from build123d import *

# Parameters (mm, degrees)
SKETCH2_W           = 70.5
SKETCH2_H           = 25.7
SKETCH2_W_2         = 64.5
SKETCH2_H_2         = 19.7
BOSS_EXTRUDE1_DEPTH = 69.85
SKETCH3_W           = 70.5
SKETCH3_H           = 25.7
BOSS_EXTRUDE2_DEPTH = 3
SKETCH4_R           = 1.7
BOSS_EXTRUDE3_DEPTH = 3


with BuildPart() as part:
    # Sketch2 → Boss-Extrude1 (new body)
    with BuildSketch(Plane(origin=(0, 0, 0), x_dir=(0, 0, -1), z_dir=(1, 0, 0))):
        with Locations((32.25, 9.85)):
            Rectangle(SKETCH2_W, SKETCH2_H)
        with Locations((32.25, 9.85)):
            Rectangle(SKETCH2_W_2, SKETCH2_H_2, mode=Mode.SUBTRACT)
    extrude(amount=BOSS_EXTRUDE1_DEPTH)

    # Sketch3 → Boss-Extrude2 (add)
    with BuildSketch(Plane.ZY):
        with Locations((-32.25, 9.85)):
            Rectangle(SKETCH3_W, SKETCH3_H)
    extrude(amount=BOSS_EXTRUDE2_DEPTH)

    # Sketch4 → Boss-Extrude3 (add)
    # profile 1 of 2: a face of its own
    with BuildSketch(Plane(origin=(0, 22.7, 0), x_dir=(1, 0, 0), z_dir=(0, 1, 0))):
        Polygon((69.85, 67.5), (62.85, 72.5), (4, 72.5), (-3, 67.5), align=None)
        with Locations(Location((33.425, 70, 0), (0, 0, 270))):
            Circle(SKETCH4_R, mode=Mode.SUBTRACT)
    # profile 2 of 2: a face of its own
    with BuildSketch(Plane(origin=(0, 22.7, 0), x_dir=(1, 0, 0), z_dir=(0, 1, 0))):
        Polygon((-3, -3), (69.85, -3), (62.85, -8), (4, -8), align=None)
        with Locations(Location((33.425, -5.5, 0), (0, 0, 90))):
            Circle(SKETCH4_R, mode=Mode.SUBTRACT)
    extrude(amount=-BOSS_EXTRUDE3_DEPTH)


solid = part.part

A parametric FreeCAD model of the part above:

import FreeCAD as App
import Part
import Sketcher
Q = App.Units.Quantity

doc = App.newDocument("Part")
body = doc.addObject("PartDesign::Body", "Body")

# Sketch on YZ plane
sketch1 = body.newObject("Sketcher::SketchObject", "Sketch")
sketch1.AttachmentSupport = (doc.getObject("YZ_Plane"), [""])
sketch1.MapMode = "FlatFace"
sketch1.addGeometry(Part.LineSegment(App.Vector(23, 3, 0), App.Vector(-3, 3, 0)), False)
sketch1.addGeometry(Part.LineSegment(App.Vector(-3, 3, 0), App.Vector(-3, -68, 0)), False)
sketch1.addGeometry(Part.LineSegment(App.Vector(-3, -68, 0), App.Vector(23, -68, 0)), False)
sketch1.addGeometry(Part.LineSegment(App.Vector(23, -68, 0), App.Vector(23, 3, 0)), False)
sketch1.addGeometry(Part.LineSegment(App.Vector(0, -64, 0), App.Vector(0, 0, 0)), False)
sketch1.addGeometry(Part.LineSegment(App.Vector(0, 0, 0), App.Vector(20, 0, 0)), False)
sketch1.addGeometry(Part.LineSegment(App.Vector(20, 0, 0), App.Vector(20, -64, 0)), False)
sketch1.addGeometry(Part.LineSegment(App.Vector(20, -64, 0), App.Vector(0, -64, 0)), False)
sketch1.addConstraint(Sketcher.Constraint("Coincident", 0, 2, 1, 1))
sketch1.addConstraint(Sketcher.Constraint("Coincident", 1, 2, 2, 1))
sketch1.addConstraint(Sketcher.Constraint("Coincident", 2, 2, 3, 1))
sketch1.addConstraint(Sketcher.Constraint("Coincident", 3, 2, 0, 1))
sketch1.addConstraint(Sketcher.Constraint("Coincident", 4, 2, 5, 1))
sketch1.addConstraint(Sketcher.Constraint("Coincident", 5, 2, 6, 1))
sketch1.addConstraint(Sketcher.Constraint("Coincident", 6, 2, 7, 1))
sketch1.addConstraint(Sketcher.Constraint("Coincident", 7, 2, 4, 1))
sketch1.addConstraint(Sketcher.Constraint("Horizontal", 0))
sketch1.addConstraint(Sketcher.Constraint("Vertical", 1))
sketch1.addConstraint(Sketcher.Constraint("Horizontal", 2))
sketch1.addConstraint(Sketcher.Constraint("Vertical", 3))
sketch1.addConstraint(Sketcher.Constraint("Vertical", 4))
sketch1.addConstraint(Sketcher.Constraint("Horizontal", 5))
sketch1.addConstraint(Sketcher.Constraint("Vertical", 6))
sketch1.addConstraint(Sketcher.Constraint("Horizontal", 7))
sketch1.addConstraint(Sketcher.Constraint("Coincident", 4, 2, -1, 1))
sketch1.addConstraint(Sketcher.Constraint("DistanceX", 0, 2, 0, 1, Q("25.7 mm")))
sketch1.addConstraint(Sketcher.Constraint("DistanceX", 5, 1, 5, 2, Q("19.7 mm")))
sketch1.addConstraint(Sketcher.Constraint("DistanceY", 1, 2, 1, 1, Q("70.5 mm")))
sketch1.addConstraint(Sketcher.Constraint("DistanceY", 4, 1, 4, 2, Q("64.5 mm")))
sketch1.addConstraint(Sketcher.Constraint("DistanceX", 0, 2, -1, 1, Q("3 mm")))
sketch1.addConstraint(Sketcher.Constraint("DistanceY", -1, 1, 0, 2, Q("3 mm")))
pad1 = body.newObject("PartDesign::Pad", "Pad")
pad1.Profile = sketch1
pad1.Length = 69.85

# Sketch on YZ plane
sketch2 = body.newObject("Sketcher::SketchObject", "Sketch001")
sketch2.AttachmentSupport = (doc.getObject("YZ_Plane"), [""])
sketch2.MapMode = "FlatFace"
sketch2.addGeometry(Part.LineSegment(App.Vector(23, -68, 0), App.Vector(-3, -68, 0)), False)
sketch2.addGeometry(Part.LineSegment(App.Vector(-3, -68, 0), App.Vector(-3, 3, 0)), False)
sketch2.addGeometry(Part.LineSegment(App.Vector(-3, 3, 0), App.Vector(23, 3, 0)), False)
sketch2.addGeometry(Part.LineSegment(App.Vector(23, 3, 0), App.Vector(23, -68, 0)), False)
sketch2.addConstraint(Sketcher.Constraint("Coincident", 0, 2, 1, 1))
sketch2.addConstraint(Sketcher.Constraint("Coincident", 1, 2, 2, 1))
sketch2.addConstraint(Sketcher.Constraint("Coincident", 2, 2, 3, 1))
sketch2.addConstraint(Sketcher.Constraint("Coincident", 3, 2, 0, 1))
sketch2.addConstraint(Sketcher.Constraint("Horizontal", 0))
sketch2.addConstraint(Sketcher.Constraint("Vertical", 1))
sketch2.addConstraint(Sketcher.Constraint("Horizontal", 2))
sketch2.addConstraint(Sketcher.Constraint("Vertical", 3))
sketch2.addConstraint(Sketcher.Constraint("DistanceX", 0, 2, 0, 1, Q("25.7 mm")))
sketch2.addConstraint(Sketcher.Constraint("DistanceY", 1, 1, 1, 2, Q("70.5 mm")))
sketch2.addConstraint(Sketcher.Constraint("DistanceX", 0, 2, -1, 1, Q("3 mm")))
sketch2.addConstraint(Sketcher.Constraint("DistanceY", -1, 1, 1, 2, Q("3 mm")))
pad2 = body.newObject("PartDesign::Pad", "Pad001")
pad2.Profile = sketch2
pad2.Length = 3
pad2.Reversed = True

# Sketch on XZ plane
sketch3 = body.newObject("Sketcher::SketchObject", "Sketch002")
sketch3.AttachmentSupport = (doc.getObject("XZ_Plane"), [""])
sketch3.MapMode = "FlatFace"
sketch3.AttachmentOffset = App.Placement(App.Vector(0, 0, -22.7), App.Rotation())
sketch3.addGeometry(Part.LineSegment(App.Vector(69.8, -67.5, 0), App.Vector(62.9, -72.5, 0)), False)
sketch3.addGeometry(Part.LineSegment(App.Vector(62.9, -72.5, 0), App.Vector(4, -72.5, 0)), False)
sketch3.addGeometry(Part.LineSegment(App.Vector(4, -72.5, 0), App.Vector(-3, -67.5, 0)), False)
sketch3.addGeometry(Part.LineSegment(App.Vector(-3, -67.5, 0), App.Vector(69.8, -67.5, 0)), False)
sketch3.addGeometry(Part.Circle(App.Vector(33.4, -70, 0), App.Vector(0, 0, 1), 1.7), False)
sketch3.addGeometry(Part.LineSegment(App.Vector(69.8, 3, 0), App.Vector(-3, 3, 0)), False)
sketch3.addGeometry(Part.LineSegment(App.Vector(-3, 3, 0), App.Vector(4, 8, 0)), False)
sketch3.addGeometry(Part.LineSegment(App.Vector(4, 8, 0), App.Vector(62.9, 8, 0)), False)
sketch3.addGeometry(Part.LineSegment(App.Vector(62.9, 8, 0), App.Vector(69.8, 3, 0)), False)
sketch3.addGeometry(Part.Circle(App.Vector(33.4, 5.5, 0), App.Vector(0, 0, 1), 1.7), False)
sketch3.addConstraint(Sketcher.Constraint("Coincident", 0, 2, 1, 1))
sketch3.addConstraint(Sketcher.Constraint("Coincident", 1, 2, 2, 1))
sketch3.addConstraint(Sketcher.Constraint("Coincident", 2, 2, 3, 1))
sketch3.addConstraint(Sketcher.Constraint("Coincident", 3, 2, 0, 1))
sketch3.addConstraint(Sketcher.Constraint("Coincident", 5, 2, 6, 1))
sketch3.addConstraint(Sketcher.Constraint("Coincident", 6, 2, 7, 1))
sketch3.addConstraint(Sketcher.Constraint("Coincident", 7, 2, 8, 1))
sketch3.addConstraint(Sketcher.Constraint("Coincident", 8, 2, 5, 1))
sketch3.addConstraint(Sketcher.Constraint("Horizontal", 1))
sketch3.addConstraint(Sketcher.Constraint("Horizontal", 3))
sketch3.addConstraint(Sketcher.Constraint("Horizontal", 5))
sketch3.addConstraint(Sketcher.Constraint("Horizontal", 7))
sketch3.addConstraint(Sketcher.Constraint("Equal", 4, 9))
sketch3.addConstraint(Sketcher.Constraint("Parallel", 0, 6))
sketch3.addConstraint(Sketcher.Constraint("Parallel", 2, 8))
sketch3.addConstraint(Sketcher.Constraint("Vertical", 4, 3, 9, 3))
sketch3.addConstraint(Sketcher.Constraint("Vertical", 2, 2, 5, 2))
sketch3.addConstraint(Sketcher.Constraint("Vertical", 1, 2, 6, 2))
sketch3.addConstraint(Sketcher.Constraint("Vertical", 0, 2, 7, 2))
sketch3.addConstraint(Sketcher.Constraint("Vertical", 3, 2, 8, 2))
sketch3.addConstraint(Sketcher.Constraint("Diameter", 4, Q("3.4 mm")))
sketch3.addConstraint(Sketcher.Constraint("DistanceY", 4, 3, -1, 1, Q("70 mm")))
sketch3.addConstraint(Sketcher.Constraint("DistanceX", -1, 1, 1, 2, Q("4 mm")))
sketch3.addConstraint(Sketcher.Constraint("DistanceX", 2, 2, -1, 1, Q("3 mm")))
sketch3.addConstraint(Sketcher.Constraint("DistanceY", -1, 1, 5, 2, Q("3 mm")))
sketch3.addConstraint(Sketcher.Constraint("DistanceY", -1, 1, 6, 2, Q("8 mm")))
sketch3.addConstraint(Sketcher.Constraint("DistanceY", 0, 2, 9, 3, Q("78 mm")))
sketch3.addConstraint(Sketcher.Constraint("DistanceX", 1, 2, 1, 1, Q("58.85 mm")))
sketch3.addConstraint(Sketcher.Constraint("DistanceY", -1, 1, 9, 3, Q("5.5 mm")))
sketch3.addConstraint(Sketcher.Constraint("DistanceX", -1, 1, 4, 3, Q("33.425 mm")))
pad3 = body.newObject("PartDesign::Pad", "Pad002")
pad3.Profile = sketch3
pad3.Length = 3

doc.recompute()
